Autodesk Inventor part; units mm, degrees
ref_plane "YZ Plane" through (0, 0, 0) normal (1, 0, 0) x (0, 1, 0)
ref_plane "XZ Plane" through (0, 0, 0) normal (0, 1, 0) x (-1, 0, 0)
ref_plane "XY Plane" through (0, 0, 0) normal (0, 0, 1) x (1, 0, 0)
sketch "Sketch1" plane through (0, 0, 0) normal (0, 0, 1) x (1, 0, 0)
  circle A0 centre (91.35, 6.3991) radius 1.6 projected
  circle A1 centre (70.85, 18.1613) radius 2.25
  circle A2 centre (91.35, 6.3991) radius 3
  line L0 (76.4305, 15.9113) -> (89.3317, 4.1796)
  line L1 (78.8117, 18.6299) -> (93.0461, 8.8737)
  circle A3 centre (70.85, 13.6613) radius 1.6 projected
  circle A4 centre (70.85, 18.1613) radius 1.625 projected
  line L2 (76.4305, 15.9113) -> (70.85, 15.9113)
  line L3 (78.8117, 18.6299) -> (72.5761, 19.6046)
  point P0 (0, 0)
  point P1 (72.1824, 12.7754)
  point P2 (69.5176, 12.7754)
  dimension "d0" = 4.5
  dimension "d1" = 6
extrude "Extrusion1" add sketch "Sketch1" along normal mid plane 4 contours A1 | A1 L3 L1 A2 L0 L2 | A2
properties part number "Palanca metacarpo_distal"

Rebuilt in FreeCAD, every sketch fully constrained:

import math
import FreeCAD as App
import Part
import Sketcher

V = App.Vector
Q = App.Units.Quantity

doc = App.newDocument("Part")
body = doc.addObject("PartDesign::Body", "Body")

sketch1 = doc.addObject("Sketcher::SketchObject", "Sketch")
body.addObject(sketch1)
sketch1.AttachmentSupport = (doc.XY_Plane, [""])
sketch1.MapMode = "FlatFace"
sketch1.addGeometry([
    Part.ArcOfCircle(Part.Circle(V(70.8, 18.2, 0), V(0, 0, 1), 2.2), math.radians(40), math.radians(270)),
    Part.LineSegment(V(70.8, 15.9, 0), V(76.4, 15.9, 0)),
    Part.LineSegment(V(76.4, 15.9, 0), V(89.3, 4.2, 0)),
    Part.ArcOfCircle(Part.Circle(V(91.3, 6.4, 0), V(0, 0, 1), 3), math.radians(-132), math.radians(56)),
    Part.LineSegment(V(93, 8.9, 0), V(78.8, 18.6, 0)),
    Part.LineSegment(V(78.8, 18.6, 0), V(72.6, 19.6, 0)),
    Part.Circle(V(70.8, 18.2, 0), V(0, 0, 1), 1.6),
    Part.Circle(V(91.3, 6.4, 0), V(0, 0, 1), 1.6),
], False)
sketch1.addConstraint([
    Sketcher.Constraint("Tangent", 0, 2, 1, 1),
    Sketcher.Constraint("Coincident", 1, 2, 2, 1),
    Sketcher.Constraint("Tangent", 2, 2, 3, 1),
    Sketcher.Constraint("Tangent", 3, 2, 4, 1),
    Sketcher.Constraint("Coincident", 4, 2, 5, 1),
    Sketcher.Constraint("Coincident", 5, 2, 0, 1),
    Sketcher.Constraint("Horizontal", 1),
    Sketcher.Constraint("Coincident", 6, 3, 0, 3),
    Sketcher.Constraint("Coincident", 7, 3, 3, 3),
    Sketcher.Constraint("Radius", 3, Q("3 mm")),
    Sketcher.Constraint("Radius", 0, Q("2.25 mm")),
    Sketcher.Constraint("Diameter", 7, Q("3.2 mm")),
    Sketcher.Constraint("Diameter", 6, Q("3.25 mm")),
    Sketcher.Constraint("DistanceX", 0, 3, 3, 3, Q("20.5 mm")),
    Sketcher.Constraint("DistanceX", -1, 1, 0, 3, Q("70.85 mm")),
    Sketcher.Constraint("DistanceY", -1, 1, 4, 2, Q("18.63 mm")),
    Sketcher.Constraint("Distance", 4, Q("17.257 mm")),
    Sketcher.Constraint("DistanceX", 1, 1, 1, 2, Q("5.5805 mm")),
    Sketcher.Constraint("DistanceY", -1, 1, 3, 3, Q("6.399 mm")),
    Sketcher.Constraint("DistanceX", -1, 1, 5, 2, Q("72.576 mm")),
    Sketcher.Constraint("DistanceY", 2, 2, 3, 2, Q("4.694 mm")),
])
pad1 = doc.addObject("PartDesign::Pad", "Pad")
body.addObject(pad1)
pad1.Profile = sketch1
pad1.Length = 4
pad1.Midplane = True

doc.recompute()
